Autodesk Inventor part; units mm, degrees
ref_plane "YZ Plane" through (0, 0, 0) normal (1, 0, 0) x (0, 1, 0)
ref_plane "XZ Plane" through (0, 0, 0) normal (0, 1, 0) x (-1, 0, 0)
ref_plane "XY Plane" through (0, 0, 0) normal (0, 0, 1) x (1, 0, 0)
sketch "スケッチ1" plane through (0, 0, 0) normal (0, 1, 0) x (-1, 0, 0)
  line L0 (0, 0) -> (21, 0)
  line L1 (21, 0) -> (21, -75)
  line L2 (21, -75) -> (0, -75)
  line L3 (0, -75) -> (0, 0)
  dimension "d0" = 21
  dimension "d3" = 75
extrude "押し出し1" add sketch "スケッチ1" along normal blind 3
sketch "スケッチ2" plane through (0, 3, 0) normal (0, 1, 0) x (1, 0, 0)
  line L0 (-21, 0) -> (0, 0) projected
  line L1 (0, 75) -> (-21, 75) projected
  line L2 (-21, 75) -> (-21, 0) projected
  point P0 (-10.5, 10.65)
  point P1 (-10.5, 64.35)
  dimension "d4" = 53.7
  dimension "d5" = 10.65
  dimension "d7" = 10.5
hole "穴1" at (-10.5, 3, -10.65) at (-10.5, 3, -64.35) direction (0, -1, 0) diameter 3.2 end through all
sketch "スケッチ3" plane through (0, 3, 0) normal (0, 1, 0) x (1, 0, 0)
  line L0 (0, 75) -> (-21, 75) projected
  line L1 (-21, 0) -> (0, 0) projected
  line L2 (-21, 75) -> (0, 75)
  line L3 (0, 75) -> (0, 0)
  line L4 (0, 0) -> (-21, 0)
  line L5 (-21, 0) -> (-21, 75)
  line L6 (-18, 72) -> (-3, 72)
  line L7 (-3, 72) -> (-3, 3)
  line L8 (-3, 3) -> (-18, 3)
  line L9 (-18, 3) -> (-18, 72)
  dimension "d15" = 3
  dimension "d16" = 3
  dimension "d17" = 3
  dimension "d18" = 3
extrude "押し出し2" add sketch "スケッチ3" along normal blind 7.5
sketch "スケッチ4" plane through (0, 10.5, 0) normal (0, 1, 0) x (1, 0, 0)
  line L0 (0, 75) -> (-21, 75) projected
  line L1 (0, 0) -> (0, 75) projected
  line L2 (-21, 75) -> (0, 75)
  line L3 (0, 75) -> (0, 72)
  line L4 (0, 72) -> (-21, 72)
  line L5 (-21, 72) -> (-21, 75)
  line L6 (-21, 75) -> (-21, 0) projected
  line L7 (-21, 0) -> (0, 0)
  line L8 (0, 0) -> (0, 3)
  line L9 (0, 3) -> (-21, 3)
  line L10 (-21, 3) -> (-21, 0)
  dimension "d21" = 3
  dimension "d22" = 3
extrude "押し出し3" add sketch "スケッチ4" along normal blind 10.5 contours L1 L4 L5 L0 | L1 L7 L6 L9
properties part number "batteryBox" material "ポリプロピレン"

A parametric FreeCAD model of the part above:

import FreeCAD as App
import Part
import Sketcher
from FreeCAD import Vector
Q = App.Units.Quantity

doc = App.newDocument("Part")
body = doc.addObject("PartDesign::Body", "Body")

# Sketch on XZ plane
sketch1 = body.newObject("Sketcher::SketchObject", "Sketch")
sketch1.AttachmentSupport = (doc.getObject("XZ_Plane"), [""])
sketch1.MapMode = "FlatFace"
sketch1.addGeometry(Part.LineSegment(Vector(-21, 0, 0), Vector(0, 0, 0)), False)
sketch1.addGeometry(Part.LineSegment(Vector(0, 0, 0), Vector(0, -75, 0)), False)
sketch1.addGeometry(Part.LineSegment(Vector(0, -75, 0), Vector(-21, -75, 0)), False)
sketch1.addGeometry(Part.LineSegment(Vector(-21, -75, 0), Vector(-21, 0, 0)), False)
sketch1.addConstraint(Sketcher.Constraint("Coincident", 0, 2, 1, 1))
sketch1.addConstraint(Sketcher.Constraint("Coincident", 1, 2, 2, 1))
sketch1.addConstraint(Sketcher.Constraint("Coincident", 2, 2, 3, 1))
sketch1.addConstraint(Sketcher.Constraint("Coincident", 3, 2, 0, 1))
sketch1.addConstraint(Sketcher.Constraint("Horizontal", 0))
sketch1.addConstraint(Sketcher.Constraint("Vertical", 1))
sketch1.addConstraint(Sketcher.Constraint("Horizontal", 2))
sketch1.addConstraint(Sketcher.Constraint("Vertical", 3))
sketch1.addConstraint(Sketcher.Constraint("Coincident", 0, 2, -1, 1))
sketch1.addConstraint(Sketcher.Constraint("DistanceX", 0, 1, 0, 2, Q("21 mm")))
sketch1.addConstraint(Sketcher.Constraint("DistanceY", 1, 2, 1, 1, Q("75 mm")))
pad1 = body.newObject("PartDesign::Pad", "Pad")
pad1.Profile = sketch1
pad1.Length = 3
pad1.Reversed = True

# Sketch on XZ plane
sketch2 = body.newObject("Sketcher::SketchObject", "Sketch001")
sketch2.AttachmentSupport = (doc.getObject("XZ_Plane"), [""])
sketch2.MapMode = "FlatFace"
sketch2.AttachmentOffset = App.Placement(Vector(0, 0, -3), App.Rotation())
sketch2.addGeometry(Part.Circle(Vector(-10.5, -10.7, 0), Vector(0, 0, 1), 1.6), False)
sketch2.addGeometry(Part.Circle(Vector(-10.5, -64.3, 0), Vector(0, 0, 1), 1.6), False)
sketch2.addConstraint(Sketcher.Constraint("Equal", 0, 1))
sketch2.addConstraint(Sketcher.Constraint("Vertical", 0, 3, 1, 3))
sketch2.addConstraint(Sketcher.Constraint("Diameter", 0, Q("3.2 mm")))
sketch2.addConstraint(Sketcher.Constraint("DistanceX", 0, 3, -1, 1, Q("10.5 mm")))
sketch2.addConstraint(Sketcher.Constraint("DistanceY", 1, 3, 0, 3, Q("53.7 mm")))
sketch2.addConstraint(Sketcher.Constraint("DistanceY", 0, 3, -1, 1, Q("10.65 mm")))
doc.recompute()
hole = body.newObject("PartDesign::Hole", "Hole")
hole.Profile = sketch2
hole.ThreadType = "None"
hole.Diameter = 3.2
hole.DepthType = "ThroughAll"
hole.Reversed = True

# Sketch on XZ plane
sketch3 = body.newObject("Sketcher::SketchObject", "Sketch002")
sketch3.AttachmentSupport = (doc.getObject("XZ_Plane"), [""])
sketch3.MapMode = "FlatFace"
sketch3.AttachmentOffset = App.Placement(Vector(0, 0, -3), App.Rotation())
sketch3.addGeometry(Part.LineSegment(Vector(0, 0, 0), Vector(0, -75, 0)), False)
sketch3.addGeometry(Part.LineSegment(Vector(0, -75, 0), Vector(-21, -75, 0)), False)
sketch3.addGeometry(Part.LineSegment(Vector(-21, -75, 0), Vector(-21, 0, 0)), False)
sketch3.addGeometry(Part.LineSegment(Vector(-21, 0, 0), Vector(0, 0, 0)), False)
sketch3.addGeometry(Part.LineSegment(Vector(-18, -3, 0), Vector(-18, -72, 0)), False)
sketch3.addGeometry(Part.LineSegment(Vector(-18, -72, 0), Vector(-3, -72, 0)), False)
sketch3.addGeometry(Part.LineSegment(Vector(-3, -72, 0), Vector(-3, -3, 0)), False)
sketch3.addGeometry(Part.LineSegment(Vector(-3, -3, 0), Vector(-18, -3, 0)), False)
sketch3.addConstraint(Sketcher.Constraint("Coincident", 0, 2, 1, 1))
sketch3.addConstraint(Sketcher.Constraint("Coincident", 1, 2, 2, 1))
sketch3.addConstraint(Sketcher.Constraint("Coincident", 2, 2, 3, 1))
sketch3.addConstraint(Sketcher.Constraint("Coincident", 3, 2, 0, 1))
sketch3.addConstraint(Sketcher.Constraint("Coincident", 4, 2, 5, 1))
sketch3.addConstraint(Sketcher.Constraint("Coincident", 5, 2, 6, 1))
sketch3.addConstraint(Sketcher.Constraint("Coincident", 6, 2, 7, 1))
sketch3.addConstraint(Sketcher.Constraint("Coincident", 7, 2, 4, 1))
sketch3.addConstraint(Sketcher.Constraint("Vertical", 0))
sketch3.addConstraint(Sketcher.Constraint("Horizontal", 1))
sketch3.addConstraint(Sketcher.Constraint("Vertical", 2))
sketch3.addConstraint(Sketcher.Constraint("Horizontal", 3))
sketch3.addConstraint(Sketcher.Constraint("Vertical", 4))
sketch3.addConstraint(Sketcher.Constraint("Horizontal", 5))
sketch3.addConstraint(Sketcher.Constraint("Vertical", 6))
sketch3.addConstraint(Sketcher.Constraint("Horizontal", 7))
sketch3.addConstraint(Sketcher.Constraint("Coincident", 3, 2, -1, 1))
sketch3.addConstraint(Sketcher.Constraint("DistanceX", 5, 2, -1, 1, Q("3 mm")))
sketch3.addConstraint(Sketcher.Constraint("DistanceY", 6, 2, -1, 1, Q("3 mm")))
sketch3.addConstraint(Sketcher.Constraint("DistanceX", 1, 2, 4, 2, Q("3 mm")))
sketch3.addConstraint(Sketcher.Constraint("DistanceY", 1, 2, 4, 2, Q("3 mm")))
sketch3.addConstraint(Sketcher.Constraint("DistanceX", 1, 2, 1, 1, Q("21 mm")))
sketch3.addConstraint(Sketcher.Constraint("DistanceY", 0, 2, 0, 1, Q("75 mm")))
pad2 = body.newObject("PartDesign::Pad", "Pad001")
pad2.Profile = sketch3
pad2.Length = 7.5
pad2.Reversed = True

# Sketch on XZ plane
sketch4 = body.newObject("Sketcher::SketchObject", "Sketch003")
sketch4.AttachmentSupport = (doc.getObject("XZ_Plane"), [""])
sketch4.MapMode = "FlatFace"
sketch4.AttachmentOffset = App.Placement(Vector(0, 0, -10.5), App.Rotation())
sketch4.addGeometry(Part.LineSegment(Vector(0, -72, 0), Vector(0, -75, 0)), False)
sketch4.addGeometry(Part.LineSegment(Vector(0, -75, 0), Vector(-21, -75, 0)), False)
sketch4.addGeometry(Part.LineSegment(Vector(-21, -75, 0), Vector(-21, -72, 0)), False)
sketch4.addGeometry(Part.LineSegment(Vector(-21, -72, 0), Vector(0, -72, 0)), False)
sketch4.addGeometry(Part.LineSegment(Vector(0, 0, 0), Vector(0, -3, 0)), False)
sketch4.addGeometry(Part.LineSegment(Vector(0, -3, 0), Vector(-21, -3, 0)), False)
sketch4.addGeometry(Part.LineSegment(Vector(-21, -3, 0), Vector(-21, 0, 0)), False)
sketch4.addGeometry(Part.LineSegment(Vector(-21, 0, 0), Vector(0, 0, 0)), False)
sketch4.addConstraint(Sketcher.Constraint("Coincident", 0, 2, 1, 1))
sketch4.addConstraint(Sketcher.Constraint("Coincident", 1, 2, 2, 1))
sketch4.addConstraint(Sketcher.Constraint("Coincident", 2, 2, 3, 1))
sketch4.addConstraint(Sketcher.Constraint("Coincident", 3, 2, 0, 1))
sketch4.addConstraint(Sketcher.Constraint("Coincident", 4, 2, 5, 1))
sketch4.addConstraint(Sketcher.Constraint("Coincident", 5, 2, 6, 1))
sketch4.addConstraint(Sketcher.Constraint("Coincident", 6, 2, 7, 1))
sketch4.addConstraint(Sketcher.Constraint("Coincident", 7, 2, 4, 1))
sketch4.addConstraint(Sketcher.Constraint("Vertical", 0))
sketch4.addConstraint(Sketcher.Constraint("Horizontal", 1))
sketch4.addConstraint(Sketcher.Constraint("Vertical", 2))
sketch4.addConstraint(Sketcher.Constraint("Horizontal", 3))
sketch4.addConstraint(Sketcher.Constraint("Vertical", 4))
sketch4.addConstraint(Sketcher.Constraint("Horizontal", 5))
sketch4.addConstraint(Sketcher.Constraint("Vertical", 6))
sketch4.addConstraint(Sketcher.Constraint("Horizontal", 7))
sketch4.addConstraint(Sketcher.Constraint("Coincident", 7, 2, -1, 1))
sketch4.addConstraint(Sketcher.Constraint("PointOnObject", 0, 2, -2))
sketch4.addConstraint(Sketcher.Constraint("Vertical", 2, 2, 5, 2))
sketch4.addConstraint(Sketcher.Constraint("Equal", 2, 4))
sketch4.addConstraint(Sketcher.Constraint("DistanceY", 0, 2, 0, 1, Q("3 mm")))
sketch4.addConstraint(Sketcher.Constraint("DistanceX", 1, 2, 1, 1, Q("21 mm")))
sketch4.addConstraint(Sketcher.Constraint("DistanceY", 0, 2, -1, 1, Q("75 mm")))
pad3 = body.newObject("PartDesign::Pad", "Pad002")
pad3.Profile = sketch4
pad3.Length = 10.5
pad3.Reversed = True

doc.recompute()
